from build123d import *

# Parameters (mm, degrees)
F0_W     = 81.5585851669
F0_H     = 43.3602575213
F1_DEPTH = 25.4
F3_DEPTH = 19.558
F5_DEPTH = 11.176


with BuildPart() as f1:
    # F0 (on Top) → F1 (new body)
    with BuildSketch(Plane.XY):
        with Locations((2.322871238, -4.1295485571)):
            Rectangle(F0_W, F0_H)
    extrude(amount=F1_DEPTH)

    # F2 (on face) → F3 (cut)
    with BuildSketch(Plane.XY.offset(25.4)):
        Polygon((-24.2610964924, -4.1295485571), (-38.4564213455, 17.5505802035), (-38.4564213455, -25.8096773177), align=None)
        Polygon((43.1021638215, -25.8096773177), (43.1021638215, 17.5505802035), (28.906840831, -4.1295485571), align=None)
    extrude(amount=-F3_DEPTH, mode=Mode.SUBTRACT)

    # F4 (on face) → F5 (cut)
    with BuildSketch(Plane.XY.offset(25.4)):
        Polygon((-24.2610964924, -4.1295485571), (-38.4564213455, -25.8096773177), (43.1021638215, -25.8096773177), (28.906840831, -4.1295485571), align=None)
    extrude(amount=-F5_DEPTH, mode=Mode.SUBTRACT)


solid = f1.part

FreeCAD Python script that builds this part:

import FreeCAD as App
import Part
import Sketcher

V = App.Vector
Q = App.Units.Quantity


def add_polygon(sketch, points):
    """Adds a closed chain of lines whose ends are joined by coincident constraints."""
    first, n = sketch.GeometryCount, len(points)
    for a, b in zip(points, points[1:] + points[:1]):
        sketch.addGeometry(Part.LineSegment(App.Vector(*a, 0), App.Vector(*b, 0)), False)
    for i in range(n):
        sketch.addConstraint(Sketcher.Constraint("Coincident", first + i, 2, first + (i + 1) % n, 1))

doc = App.newDocument("Part")
body = doc.addObject("PartDesign::Body", "Body")

sketch1 = body.newObject("Sketcher::SketchObject", "Sketch")
sketch1.AttachmentSupport = (doc.getObject("XY_Plane"), [""])
sketch1.MapMode = "FlatFace"
add_polygon(sketch1, [(-38, 18), (-38, -26), (43, -26), (43, 18)])
sketch1.addConstraint([
    Sketcher.Constraint("Vertical", 0),
    Sketcher.Constraint("Horizontal", 1),
    Sketcher.Constraint("Vertical", 2),
    Sketcher.Constraint("Horizontal", 3),
    Sketcher.Constraint("DistanceX", 1, 1, 1, 2, 81.558585),
    Sketcher.Constraint("DistanceY", 0, 2, 0, 1, 43.360258),
    Sketcher.Constraint("DistanceX", 0, 2, -1, 1, 38.456421),
    Sketcher.Constraint("DistanceY", -1, 1, 2, 2, 17.55058),
])
pad1 = body.newObject("PartDesign::Pad", "Pad")
pad1.Profile = sketch1
pad1.Length = Q("1 in")

sketch2 = body.newObject("Sketcher::SketchObject", "Sketch001")
sketch2.AttachmentSupport = (doc.getObject("XY_Plane"), [""])
sketch2.MapMode = "FlatFace"
sketch2.AttachmentOffset = App.Placement(V(0, 0, 1 * 25.4), App.Rotation())
add_polygon(sketch2, [(-24, -4), (-38, 18), (-38, -26)])
add_polygon(sketch2, [(43, -26), (43, 18), (29, -4)])
sketch2.addConstraint([
    Sketcher.Constraint("Vertical", 1),
    Sketcher.Constraint("Vertical", 3),
    Sketcher.Constraint("Parallel", 2, 4),
    Sketcher.Constraint("Parallel", 0, 5),
    Sketcher.Constraint("Horizontal", 0, 2, 3, 2),
    Sketcher.Constraint("Horizontal", 2, 2, 4, 2),
    Sketcher.Constraint("Horizontal", 1, 2, 5, 2),
    Sketcher.Constraint("DistanceY", 1, 2, 1, 1, 43.360258),
    Sketcher.Constraint("DistanceX", 0, 2, -1, 1, 38.456421),
    Sketcher.Constraint("DistanceY", -1, 1, 0, 2, 17.55058),
    Sketcher.Constraint("DistanceX", -1, 1, 4, 2, 28.906841),
    Sketcher.Constraint("Distance", 0, 25.913997),
])
pocket1 = body.newObject("PartDesign::Pocket", "Pocket")
pocket1.Profile = sketch2
pocket1.Length = Q("0.77 in")

sketch3 = body.newObject("Sketcher::SketchObject", "Sketch002")
sketch3.AttachmentSupport = (doc.getObject("XY_Plane"), [""])
sketch3.MapMode = "FlatFace"
sketch3.AttachmentOffset = App.Placement(V(0, 0, 1 * 25.4), App.Rotation())
add_polygon(sketch3, [(-24, -4), (-38, -26), (43, -26), (29, -4)])
sketch3.addConstraint([
    Sketcher.Constraint("Horizontal", 1),
    Sketcher.Constraint("Horizontal", 3),
    Sketcher.Constraint("Equal", 0, 2),
    Sketcher.Constraint("DistanceX", 1, 1, 1, 2, 81.558585),
    Sketcher.Constraint("DistanceX", 3, 2, 3, 1, 53.167937),
    Sketcher.Constraint("DistanceX", 0, 2, -1, 1, 38.456421),
    Sketcher.Constraint("DistanceY", 2, 2, -1, 1, 4.129549),
    Sketcher.Constraint("DistanceY", 1, 2, 2, 2, 21.680129),
])
pocket2 = body.newObject("PartDesign::Pocket", "Pocket001")
pocket2.Profile = sketch3
pocket2.Length = Q("0.44 in")

doc.recompute()
